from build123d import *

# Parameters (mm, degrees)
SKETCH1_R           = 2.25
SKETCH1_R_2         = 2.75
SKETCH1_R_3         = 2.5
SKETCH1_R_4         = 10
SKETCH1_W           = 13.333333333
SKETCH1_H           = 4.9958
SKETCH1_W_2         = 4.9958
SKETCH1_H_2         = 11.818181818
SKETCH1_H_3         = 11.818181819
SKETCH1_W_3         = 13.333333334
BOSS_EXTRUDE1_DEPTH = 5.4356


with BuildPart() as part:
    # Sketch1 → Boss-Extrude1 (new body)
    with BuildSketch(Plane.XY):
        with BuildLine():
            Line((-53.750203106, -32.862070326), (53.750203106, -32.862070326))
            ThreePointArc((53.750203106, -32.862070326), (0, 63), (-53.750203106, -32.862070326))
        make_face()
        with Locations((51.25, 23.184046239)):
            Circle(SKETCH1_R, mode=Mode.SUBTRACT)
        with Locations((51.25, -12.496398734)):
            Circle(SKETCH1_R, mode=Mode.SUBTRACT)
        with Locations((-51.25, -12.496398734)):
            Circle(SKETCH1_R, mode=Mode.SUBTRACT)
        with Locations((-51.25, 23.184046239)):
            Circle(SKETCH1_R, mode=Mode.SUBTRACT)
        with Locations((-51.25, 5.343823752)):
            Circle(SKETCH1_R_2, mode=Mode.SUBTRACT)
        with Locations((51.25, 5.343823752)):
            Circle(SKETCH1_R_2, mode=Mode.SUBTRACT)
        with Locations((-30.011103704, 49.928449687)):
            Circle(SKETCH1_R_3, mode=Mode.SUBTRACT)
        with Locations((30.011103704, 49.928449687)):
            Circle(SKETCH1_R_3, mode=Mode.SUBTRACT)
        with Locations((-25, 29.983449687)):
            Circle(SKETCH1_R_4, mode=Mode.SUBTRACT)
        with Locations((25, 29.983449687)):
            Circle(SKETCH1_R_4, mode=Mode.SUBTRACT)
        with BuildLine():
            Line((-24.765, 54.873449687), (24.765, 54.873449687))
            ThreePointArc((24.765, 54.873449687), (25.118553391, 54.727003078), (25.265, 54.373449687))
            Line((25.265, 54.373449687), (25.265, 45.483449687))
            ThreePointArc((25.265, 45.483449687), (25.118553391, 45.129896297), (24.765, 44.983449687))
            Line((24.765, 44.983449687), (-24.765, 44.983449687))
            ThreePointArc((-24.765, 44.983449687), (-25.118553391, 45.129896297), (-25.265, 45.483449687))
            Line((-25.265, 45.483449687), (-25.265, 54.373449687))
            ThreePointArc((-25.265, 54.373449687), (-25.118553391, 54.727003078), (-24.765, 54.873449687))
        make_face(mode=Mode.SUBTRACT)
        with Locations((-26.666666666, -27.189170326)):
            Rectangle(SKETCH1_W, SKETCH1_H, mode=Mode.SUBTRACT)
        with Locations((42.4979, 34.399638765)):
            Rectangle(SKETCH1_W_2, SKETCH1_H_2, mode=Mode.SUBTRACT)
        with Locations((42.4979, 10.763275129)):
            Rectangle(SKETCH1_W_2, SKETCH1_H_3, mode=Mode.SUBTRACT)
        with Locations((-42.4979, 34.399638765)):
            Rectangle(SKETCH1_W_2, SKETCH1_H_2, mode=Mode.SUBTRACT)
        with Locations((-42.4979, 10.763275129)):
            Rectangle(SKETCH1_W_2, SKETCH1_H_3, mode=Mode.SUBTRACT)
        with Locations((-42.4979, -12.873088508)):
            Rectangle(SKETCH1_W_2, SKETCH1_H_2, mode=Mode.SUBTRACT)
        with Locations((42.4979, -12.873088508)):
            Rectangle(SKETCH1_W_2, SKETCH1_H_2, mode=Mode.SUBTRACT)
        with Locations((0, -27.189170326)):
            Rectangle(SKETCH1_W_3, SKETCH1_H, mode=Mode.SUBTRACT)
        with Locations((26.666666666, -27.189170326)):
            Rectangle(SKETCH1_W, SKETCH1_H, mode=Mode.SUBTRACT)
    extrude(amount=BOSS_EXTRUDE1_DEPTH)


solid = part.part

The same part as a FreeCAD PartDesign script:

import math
import FreeCAD as App
import Part
import Sketcher

V = App.Vector


def add_polygon(sketch, points):
    """Adds a closed chain of lines whose ends are joined by coincident constraints."""
    first, n = sketch.GeometryCount, len(points)
    for a, b in zip(points, points[1:] + points[:1]):
        sketch.addGeometry(Part.LineSegment(App.Vector(*a, 0), App.Vector(*b, 0)), False)
    for i in range(n):
        sketch.addConstraint(Sketcher.Constraint("Coincident", first + i, 2, first + (i + 1) % n, 1))

doc = App.newDocument("Part")
body = doc.addObject("PartDesign::Body", "Body")

sketch1 = body.newObject("Sketcher::SketchObject", "Sketch")
sketch1.AttachmentSupport = (doc.getObject("XY_Plane"), [""])
sketch1.MapMode = "FlatFace"
sketch1.addGeometry(Part.LineSegment(V(-53.75, -32.86, 0), V(53.75, -32.86, 0)), False)
sketch1.addGeometry(Part.ArcOfCircle(Part.Circle(V(0, 0, 0), V(0, 0, 1), 63), math.radians(-31), math.radians(211)), False)
sketch1.addGeometry(Part.Circle(V(-51.25, -12.5, 0), V(0, 0, 1), 2.25), False)
add_polygon(sketch1, [(-40, -18.78), (-45, -18.78), (-45, -6.96), (-40, -6.96)])
add_polygon(sketch1, [(-20, -29.69), (-33.33, -29.69), (-33.33, -24.69), (-20, -24.69)])
sketch1.addGeometry(Part.Circle(V(-51.25, 5.34, 0), V(0, 0, 1), 2.75), False)
add_polygon(sketch1, [(-40, 4.85), (-45, 4.85), (-45, 16.67), (-40, 16.67)])
add_polygon(sketch1, [(6.67, -29.69), (-6.67, -29.69), (-6.67, -24.69), (6.67, -24.69)])
add_polygon(sketch1, [(33.33, -29.69), (20, -29.69), (20, -24.69), (33.33, -24.69)])
add_polygon(sketch1, [(45, -18.78), (40, -18.78), (40, -6.96), (45, -6.96)])
sketch1.addGeometry(Part.Circle(V(51.25, -12.5, 0), V(0, 0, 1), 2.25), False)
sketch1.addGeometry(Part.Circle(V(51.25, 5.34, 0), V(0, 0, 1), 2.75), False)
add_polygon(sketch1, [(45, 4.85), (40, 4.85), (40, 16.67), (45, 16.67)])
sketch1.addGeometry(Part.Circle(V(-51.25, 23.18, 0), V(0, 0, 1), 2.25), False)
sketch1.addGeometry(Part.Circle(V(-25, 29.98, 0), V(0, 0, 1), 10), False)
add_polygon(sketch1, [(-40, 28.49), (-45, 28.49), (-45, 40.31), (-40, 40.31)])
sketch1.addGeometry(Part.Circle(V(-30.01, 49.93, 0), V(0, 0, 1), 2.5), False)
sketch1.addGeometry(Part.Circle(V(25, 29.98, 0), V(0, 0, 1), 10), False)
sketch1.addGeometry(Part.Circle(V(51.25, 23.18, 0), V(0, 0, 1), 2.25), False)
sketch1.addGeometry(Part.ArcOfCircle(Part.Circle(V(-24.77, 54.37, 0), V(0, 0, 1), 0.5), math.radians(90), math.radians(180)), False)
sketch1.addGeometry(Part.LineSegment(V(-24.77, 54.87, 0), V(24.77, 54.87, 0)), False)
sketch1.addGeometry(Part.ArcOfCircle(Part.Circle(V(24.77, 54.37, 0), V(0, 0, 1), 0.5), math.radians(0), math.radians(90)), False)
sketch1.addGeometry(Part.LineSegment(V(25.27, 54.37, 0), V(25.27, 45.48, 0)), False)
sketch1.addGeometry(Part.ArcOfCircle(Part.Circle(V(24.77, 45.48, 0), V(0, 0, 1), 0.5), math.radians(-90), math.radians(0)), False)
sketch1.addGeometry(Part.LineSegment(V(24.77, 44.98, 0), V(-24.77, 44.98, 0)), False)
sketch1.addGeometry(Part.ArcOfCircle(Part.Circle(V(-24.77, 45.48, 0), V(0, 0, 1), 0.5), math.radians(180), math.radians(270)), False)
sketch1.addGeometry(Part.LineSegment(V(-25.27, 45.48, 0), V(-25.27, 54.37, 0)), False)
add_polygon(sketch1, [(45, 28.49), (40, 28.49), (40, 40.31), (45, 40.31)])
sketch1.addGeometry(Part.Circle(V(30.01, 49.93, 0), V(0, 0, 1), 2.5), False)
sketch1.addConstraint(Sketcher.Constraint("Coincident", 0, 1, 1, 2))
sketch1.addConstraint(Sketcher.Constraint("Coincident", 1, 1, 0, 2))
sketch1.addConstraint(Sketcher.Constraint("Tangent", 43, 1, 44, 1))
sketch1.addConstraint(Sketcher.Constraint("Tangent", 44, 2, 45, 2))
sketch1.addConstraint(Sketcher.Constraint("Tangent", 45, 1, 46, 1))
sketch1.addConstraint(Sketcher.Constraint("Tangent", 46, 2, 47, 2))
sketch1.addConstraint(Sketcher.Constraint("Tangent", 47, 1, 48, 1))
sketch1.addConstraint(Sketcher.Constraint("Tangent", 48, 2, 49, 2))
sketch1.addConstraint(Sketcher.Constraint("Tangent", 49, 1, 50, 1))
sketch1.addConstraint(Sketcher.Constraint("Tangent", 50, 2, 43, 2))
sketch1.addConstraint(Sketcher.Constraint("Horizontal", 0))
sketch1.addConstraint(Sketcher.Constraint("Horizontal", 3))
sketch1.addConstraint(Sketcher.Constraint("Vertical", 4))
sketch1.addConstraint(Sketcher.Constraint("Horizontal", 5))
sketch1.addConstraint(Sketcher.Constraint("Vertical", 6))
sketch1.addConstraint(Sketcher.Constraint("Horizontal", 7))
sketch1.addConstraint(Sketcher.Constraint("Vertical", 8))
sketch1.addConstraint(Sketcher.Constraint("Horizontal", 9))
sketch1.addConstraint(Sketcher.Constraint("Vertical", 10))
sketch1.addConstraint(Sketcher.Constraint("Horizontal", 12))
sketch1.addConstraint(Sketcher.Constraint("Vertical", 13))
sketch1.addConstraint(Sketcher.Constraint("Horizontal", 14))
sketch1.addConstraint(Sketcher.Constraint("Vertical", 15))
sketch1.addConstraint(Sketcher.Constraint("Horizontal", 16))
sketch1.addConstraint(Sketcher.Constraint("Vertical", 17))
sketch1.addConstraint(Sketcher.Constraint("Horizontal", 18))
sketch1.addConstraint(Sketcher.Constraint("Vertical", 19))
sketch1.addConstraint(Sketcher.Constraint("Horizontal", 20))
sketch1.addConstraint(Sketcher.Constraint("Vertical", 21))
sketch1.addConstraint(Sketcher.Constraint("Horizontal", 22))
sketch1.addConstraint(Sketcher.Constraint("Vertical", 23))
sketch1.addConstraint(Sketcher.Constraint("Horizontal", 24))
sketch1.addConstraint(Sketcher.Constraint("Vertical", 25))
sketch1.addConstraint(Sketcher.Constraint("Horizontal", 26))
sketch1.addConstraint(Sketcher.Constraint("Vertical", 27))
sketch1.addConstraint(Sketcher.Constraint("Horizontal", 30))
sketch1.addConstraint(Sketcher.Constraint("Vertical", 31))
sketch1.addConstraint(Sketcher.Constraint("Horizontal", 32))
sketch1.addConstraint(Sketcher.Constraint("Vertical", 33))
sketch1.addConstraint(Sketcher.Constraint("Horizontal", 36))
sketch1.addConstraint(Sketcher.Constraint("Vertical", 37))
sketch1.addConstraint(Sketcher.Constraint("Horizontal", 38))
sketch1.addConstraint(Sketcher.Constraint("Vertical", 39))
sketch1.addConstraint(Sketcher.Constraint("Horizontal", 44))
sketch1.addConstraint(Sketcher.Constraint("Vertical", 46))
sketch1.addConstraint(Sketcher.Constraint("Horizontal", 48))
sketch1.addConstraint(Sketcher.Constraint("Vertical", 50))
sketch1.addConstraint(Sketcher.Constraint("Horizontal", 51))
sketch1.addConstraint(Sketcher.Constraint("Vertical", 52))
sketch1.addConstraint(Sketcher.Constraint("Horizontal", 53))
sketch1.addConstraint(Sketcher.Constraint("Vertical", 54))
sketch1.addConstraint(Sketcher.Constraint("Coincident", 1, 3, -1, 1))
sketch1.addConstraint(Sketcher.Constraint("Equal", 2, 28))
sketch1.addConstraint(Sketcher.Constraint("Equal", 11, 29))
sketch1.addConstraint(Sketcher.Constraint("Equal", 28, 34))
sketch1.addConstraint(Sketcher.Constraint("Equal", 35, 41))
sketch1.addConstraint(Sketcher.Constraint("Equal", 34, 42))
sketch1.addConstraint(Sketcher.Constraint("Equal", 43, 45))
sketch1.addConstraint(Sketcher.Constraint("Equal", 45, 47))
sketch1.addConstraint(Sketcher.Constraint("Equal", 47, 49))
sketch1.addConstraint(Sketcher.Constraint("Equal", 40, 55))
sketch1.addConstraint(Sketcher.Constraint("Symmetric", 2, 3, 28, 3, -2))
sketch1.addConstraint(Sketcher.Constraint("Symmetric", 11, 3, 29, 3, -2))
sketch1.addConstraint(Sketcher.Constraint("Symmetric", 35, 3, 41, 3, -2))
sketch1.addConstraint(Sketcher.Constraint("Symmetric", 34, 3, 42, 3, -2))
sketch1.addConstraint(Sketcher.Constraint("Symmetric", 40, 3, 55, 3, -2))
sketch1.addConstraint(Sketcher.Constraint("Symmetric", 10, 2, 20, 2, -2))
sketch1.addConstraint(Sketcher.Constraint("Symmetric", 8, 2, 22, 2, -2))
sketch1.addConstraint(Sketcher.Constraint("Symmetric", 6, 2, 24, 2, -2))
sketch1.addConstraint(Sketcher.Constraint("Symmetric", 4, 2, 26, 2, -2))
sketch1.addConstraint(Sketcher.Constraint("Symmetric", 15, 2, 30, 2, -2))
sketch1.addConstraint(Sketcher.Constraint("Symmetric", 13, 2, 32, 2, -2))
sketch1.addConstraint(Sketcher.Constraint("Symmetric", 39, 2, 51, 2, -2))
sketch1.addConstraint(Sketcher.Constraint("Symmetric", 37, 2, 53, 2, -2))
sketch1.addConstraint(Sketcher.Constraint("Horizontal", 10, 2, 16, 2))
sketch1.addConstraint(Sketcher.Constraint("Horizontal", 9, 2, 17, 2))
sketch1.addConstraint(Sketcher.Constraint("Vertical", 2, 3, 11, 3))
sketch1.addConstraint(Sketcher.Constraint("Vertical", 11, 3, 34, 3))
sketch1.addConstraint(Sketcher.Constraint("Vertical", 4, 2, 12, 2))
sketch1.addConstraint(Sketcher.Constraint("Vertical", 6, 2, 14, 2))
sketch1.addConstraint(Sketcher.Constraint("Vertical", 13, 2, 36, 2))
sketch1.addConstraint(Sketcher.Constraint("Vertical", 15, 2, 38, 2))
sketch1.addConstraint(Sketcher.Constraint("Equal", 9, 16))
sketch1.addConstraint(Sketcher.Constraint("Equal", 53, 8))
sketch1.addConstraint(Sketcher.Constraint("Equal", 6, 13))
sketch1.addConstraint(Sketcher.Constraint("Equal", 33, 37))
sketch1.addConstraint(Sketcher.Constraint("Diameter", 35, 20.0))
sketch1.addConstraint(Sketcher.Constraint("Diameter", 40, 5.0))
sketch1.addConstraint(Sketcher.Constraint("Radius", 1, 63.0))
sketch1.addConstraint(Sketcher.Constraint("Diameter", 2, 4.5))
sketch1.addConstraint(Sketcher.Constraint("Diameter", 11, 5.5))
sketch1.addConstraint(Sketcher.Constraint("Radius", 43, 0.5))
sketch1.addConstraint(Sketcher.Constraint("DistanceX", 35, 3, -1, 1, 25.0))
sketch1.addConstraint(Sketcher.Constraint("DistanceX", 5, 2, -1, 1, 40.0))
sketch1.addConstraint(Sketcher.Constraint("DistanceX", 9, 2, -1, 1, 20.0))
sketch1.addConstraint(Sketcher.Constraint("DistanceX", 44, 1, 44, 2, 49.53))
sketch1.addConstraint(Sketcher.Constraint("DistanceY", 46, 2, 46, 1, 8.89))
sketch1.addConstraint(Sketcher.Constraint("DistanceX", 2, 3, -1, 1, 51.25))
sketch1.addConstraint(Sketcher.Constraint("DistanceX", 3, 2, 3, 1, 4.9958))
sketch1.addConstraint(Sketcher.Constraint("DistanceX", 43, 3, -1, 1, 24.765))
sketch1.addConstraint(Sketcher.Constraint("DistanceY", 4, 1, 4, 2, 11.818182))
sketch1.addConstraint(Sketcher.Constraint("DistanceY", 2, 3, -1, 1, 12.496399))
sketch1.addConstraint(Sketcher.Constraint("DistanceX", 0, 1, 0, 2, 107.500406))
sketch1.addConstraint(Sketcher.Constraint("DistanceX", 7, 2, 7, 1, 13.333333))
sketch1.addConstraint(Sketcher.Constraint("DistanceY", -1, 1, 35, 3, 29.98345))
sketch1.addConstraint(Sketcher.Constraint("DistanceY", -1, 1, 40, 3, 49.92845))
sketch1.addConstraint(Sketcher.Constraint("DistanceY", -1, 1, 43, 3, 54.37345))
sketch1.addConstraint(Sketcher.Constraint("DistanceY", 3, 2, -1, 1, 18.782179))
sketch1.addConstraint(Sketcher.Constraint("DistanceY", 7, 2, -1, 1, 29.68707))
sketch1.addConstraint(Sketcher.Constraint("DistanceY", -1, 1, 37, 2, 40.30873))
sketch1.addConstraint(Sketcher.Constraint("DistanceY", -1, 1, 11, 3, 5.343824))
sketch1.addConstraint(Sketcher.Constraint("DistanceY", -1, 1, 34, 3, 23.184046))
sketch1.addConstraint(Sketcher.Constraint("DistanceX", 40, 3, -1, 1, 30.011104))
sketch1.addConstraint(Sketcher.Constraint("DistanceY", -1, 1, 12, 2, 4.854184))
sketch1.addConstraint(Sketcher.Constraint("DistanceX", 16, 2, -1, 1, 6.666667))
pad1 = body.newObject("PartDesign::Pad", "Pad")
pad1.Profile = sketch1
pad1.Length = 5.4356

doc.recompute()
